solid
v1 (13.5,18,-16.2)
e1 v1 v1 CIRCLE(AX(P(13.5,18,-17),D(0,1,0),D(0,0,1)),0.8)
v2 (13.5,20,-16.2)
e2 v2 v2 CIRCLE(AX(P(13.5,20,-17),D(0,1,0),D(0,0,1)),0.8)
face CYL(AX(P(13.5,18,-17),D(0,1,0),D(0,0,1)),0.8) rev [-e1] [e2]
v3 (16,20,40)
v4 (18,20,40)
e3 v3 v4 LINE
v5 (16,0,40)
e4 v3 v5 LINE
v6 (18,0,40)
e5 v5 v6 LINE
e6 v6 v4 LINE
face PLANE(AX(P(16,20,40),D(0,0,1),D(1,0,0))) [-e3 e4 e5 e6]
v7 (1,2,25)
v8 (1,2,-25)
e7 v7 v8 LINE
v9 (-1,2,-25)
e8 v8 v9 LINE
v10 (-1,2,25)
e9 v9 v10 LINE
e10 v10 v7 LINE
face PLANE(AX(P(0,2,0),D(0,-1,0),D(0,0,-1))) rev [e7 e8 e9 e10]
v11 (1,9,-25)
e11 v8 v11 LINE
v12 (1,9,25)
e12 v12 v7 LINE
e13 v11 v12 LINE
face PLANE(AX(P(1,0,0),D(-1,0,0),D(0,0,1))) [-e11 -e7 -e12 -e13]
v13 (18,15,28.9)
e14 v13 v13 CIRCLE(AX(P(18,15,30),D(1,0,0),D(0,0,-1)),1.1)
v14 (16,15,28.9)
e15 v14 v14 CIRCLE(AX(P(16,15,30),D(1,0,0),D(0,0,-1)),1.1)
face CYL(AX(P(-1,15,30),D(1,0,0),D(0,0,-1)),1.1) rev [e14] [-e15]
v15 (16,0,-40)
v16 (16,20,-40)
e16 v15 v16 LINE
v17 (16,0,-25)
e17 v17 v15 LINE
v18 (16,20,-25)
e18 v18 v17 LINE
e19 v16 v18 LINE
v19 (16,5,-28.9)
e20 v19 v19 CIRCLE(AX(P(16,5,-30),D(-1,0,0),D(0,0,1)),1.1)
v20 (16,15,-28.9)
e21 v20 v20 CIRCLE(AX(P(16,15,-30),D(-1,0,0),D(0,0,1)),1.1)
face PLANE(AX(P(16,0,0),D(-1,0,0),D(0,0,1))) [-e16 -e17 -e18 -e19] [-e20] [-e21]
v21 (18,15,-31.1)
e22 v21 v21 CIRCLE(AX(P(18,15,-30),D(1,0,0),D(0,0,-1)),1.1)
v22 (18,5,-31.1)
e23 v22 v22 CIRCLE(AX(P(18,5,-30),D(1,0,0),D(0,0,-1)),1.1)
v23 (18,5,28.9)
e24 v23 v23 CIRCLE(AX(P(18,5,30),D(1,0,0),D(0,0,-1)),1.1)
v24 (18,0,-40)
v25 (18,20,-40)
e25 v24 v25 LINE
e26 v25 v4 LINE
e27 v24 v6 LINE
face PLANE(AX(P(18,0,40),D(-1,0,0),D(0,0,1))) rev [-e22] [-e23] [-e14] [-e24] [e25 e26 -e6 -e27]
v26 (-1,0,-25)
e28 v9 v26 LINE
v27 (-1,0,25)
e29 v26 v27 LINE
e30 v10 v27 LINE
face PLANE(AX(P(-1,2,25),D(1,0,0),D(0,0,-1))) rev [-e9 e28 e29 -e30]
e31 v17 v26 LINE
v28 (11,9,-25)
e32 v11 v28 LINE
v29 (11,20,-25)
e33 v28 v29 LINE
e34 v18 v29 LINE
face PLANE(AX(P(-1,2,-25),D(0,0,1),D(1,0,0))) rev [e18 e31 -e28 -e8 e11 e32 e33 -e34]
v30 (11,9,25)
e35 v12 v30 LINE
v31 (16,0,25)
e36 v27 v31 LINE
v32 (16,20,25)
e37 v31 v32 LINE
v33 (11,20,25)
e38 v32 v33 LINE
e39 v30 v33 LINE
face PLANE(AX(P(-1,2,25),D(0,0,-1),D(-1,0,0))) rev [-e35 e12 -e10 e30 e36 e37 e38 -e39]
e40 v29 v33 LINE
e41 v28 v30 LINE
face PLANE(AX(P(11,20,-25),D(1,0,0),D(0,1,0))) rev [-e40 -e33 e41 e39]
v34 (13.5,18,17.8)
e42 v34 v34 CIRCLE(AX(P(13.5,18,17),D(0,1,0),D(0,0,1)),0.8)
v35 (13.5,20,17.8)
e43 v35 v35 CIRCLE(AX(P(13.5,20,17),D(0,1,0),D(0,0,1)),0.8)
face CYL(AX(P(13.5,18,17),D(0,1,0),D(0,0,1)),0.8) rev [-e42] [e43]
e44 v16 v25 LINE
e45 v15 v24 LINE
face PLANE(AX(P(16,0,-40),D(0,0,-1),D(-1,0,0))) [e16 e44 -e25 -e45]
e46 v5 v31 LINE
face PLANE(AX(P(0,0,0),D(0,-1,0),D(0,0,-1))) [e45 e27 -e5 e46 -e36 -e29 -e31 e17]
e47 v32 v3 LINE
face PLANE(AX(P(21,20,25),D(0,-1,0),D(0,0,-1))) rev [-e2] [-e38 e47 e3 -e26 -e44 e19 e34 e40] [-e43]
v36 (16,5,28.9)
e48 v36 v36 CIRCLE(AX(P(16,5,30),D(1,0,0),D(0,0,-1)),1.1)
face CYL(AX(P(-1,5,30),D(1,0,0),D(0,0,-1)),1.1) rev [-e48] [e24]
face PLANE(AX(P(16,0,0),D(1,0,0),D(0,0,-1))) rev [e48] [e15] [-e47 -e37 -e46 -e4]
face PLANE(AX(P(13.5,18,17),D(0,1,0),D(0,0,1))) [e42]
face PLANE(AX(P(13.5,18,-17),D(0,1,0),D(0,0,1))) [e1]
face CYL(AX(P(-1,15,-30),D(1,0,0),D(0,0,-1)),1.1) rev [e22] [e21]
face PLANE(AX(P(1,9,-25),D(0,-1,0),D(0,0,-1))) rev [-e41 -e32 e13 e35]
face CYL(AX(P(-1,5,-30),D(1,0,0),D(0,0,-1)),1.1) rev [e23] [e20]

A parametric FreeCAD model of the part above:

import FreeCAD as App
import Part
import Sketcher
from FreeCAD import Vector
Q = App.Units.Quantity


def add_polygon(sketch, points):
    """Adds a closed chain of lines whose ends are joined by coincident constraints."""
    first, n = sketch.GeometryCount, len(points)
    for a, b in zip(points, points[1:] + points[:1]):
        sketch.addGeometry(Part.LineSegment(App.Vector(*a, 0), App.Vector(*b, 0)), False)
    for i in range(n):
        sketch.addConstraint(Sketcher.Constraint("Coincident", first + i, 2, first + (i + 1) % n, 1))

doc = App.newDocument("Part")
body = doc.addObject("PartDesign::Body", "Body")

sketch1 = body.newObject("Sketcher::SketchObject", "Sketch")
sketch1.AttachmentSupport = (doc.getObject("XZ_Plane"), [""])
sketch1.MapMode = "FlatFace"
add_polygon(sketch1, [(-1, -25), (-1, 25), (1, 25), (1, -25)])
sketch1.addConstraint([
    Sketcher.Constraint("Vertical", 0),
    Sketcher.Constraint("Horizontal", 1),
    Sketcher.Constraint("Vertical", 2),
    Sketcher.Constraint("Horizontal", 3),
    Sketcher.Constraint("Symmetric", 0, 2, 2, 2, -1, 1),
    Sketcher.Constraint("DistanceX", 1, 1, 1, 2, Q("2 mm")),
    Sketcher.Constraint("DistanceY", 0, 1, 0, 2, Q("50 mm")),
])
pad1 = body.newObject("PartDesign::Pad", "Pad")
pad1.Profile = sketch1
pad1.Length = 2
pad1.Reversed = True

sketch2 = body.newObject("Sketcher::SketchObject", "Sketch001")
sketch2.AttachmentSupport = (doc.getObject("YZ_Plane"), [""])
sketch2.MapMode = "FlatFace"
sketch2.AttachmentOffset = App.Placement(Vector(0, 0, 1), App.Rotation())
add_polygon(sketch2, [(20, 25), (0, 25), (0, -25), (20, -25)])
sketch2.addConstraint([
    Sketcher.Constraint("Horizontal", 0),
    Sketcher.Constraint("Vertical", 1),
    Sketcher.Constraint("Horizontal", 2),
    Sketcher.Constraint("Vertical", 3),
    Sketcher.Constraint("Symmetric", 0, 2, 1, 2, -1, 1),
    Sketcher.Constraint("DistanceX", 0, 2, 0, 1, Q("20 mm")),
    Sketcher.Constraint("DistanceY", 1, 2, 1, 1, Q("50 mm")),
])
pad2 = body.newObject("PartDesign::Pad", "Pad001")
pad2.Profile = sketch2
pad2.Length = 20

sketch3 = body.newObject("Sketcher::SketchObject", "Sketch002")
sketch3.AttachmentSupport = (doc.getObject("XY_Plane"), [""])
sketch3.MapMode = "FlatFace"
sketch3.AttachmentOffset = App.Placement(Vector(0, 0, 25), App.Rotation())
add_polygon(sketch3, [(1, 20), (1, 9), (11, 9), (11, 20)])
sketch3.addConstraint([
    Sketcher.Constraint("Vertical", 0),
    Sketcher.Constraint("Horizontal", 1),
    Sketcher.Constraint("Vertical", 2),
    Sketcher.Constraint("Horizontal", 3),
    Sketcher.Constraint("DistanceX", 1, 1, 1, 2, Q("10 mm")),
    Sketcher.Constraint("DistanceY", 0, 2, 0, 1, Q("11 mm")),
    Sketcher.Constraint("DistanceX", -1, 1, 0, 2, Q("1 mm")),
    Sketcher.Constraint("DistanceY", -1, 1, 0, 2, Q("9 mm")),
])
pocket1 = body.newObject("PartDesign::Pocket", "Pocket")
pocket1.Profile = sketch3
pocket1.Type = "ThroughAll"

sketch4 = body.newObject("Sketcher::SketchObject", "Sketch003")
sketch4.AttachmentSupport = (doc.getObject("YZ_Plane"), [""])
sketch4.MapMode = "FlatFace"
sketch4.AttachmentOffset = App.Placement(Vector(0, 0, 21), App.Rotation())
add_polygon(sketch4, [(20, 40), (0, 40), (0, 25), (20, 25)])
add_polygon(sketch4, [(20, -25), (0, -25), (0, -40), (20, -40)])
sketch4.addConstraint([
    Sketcher.Constraint("Horizontal", 0),
    Sketcher.Constraint("Vertical", 1),
    Sketcher.Constraint("Horizontal", 2),
    Sketcher.Constraint("Vertical", 3),
    Sketcher.Constraint("Horizontal", 4),
    Sketcher.Constraint("Vertical", 5),
    Sketcher.Constraint("Horizontal", 6),
    Sketcher.Constraint("Vertical", 7),
    Sketcher.Constraint("Symmetric", 1, 2, 4, 2, -1, 1),
    Sketcher.Constraint("Symmetric", 0, 2, 5, 2, -1),
    Sketcher.Constraint("Vertical", 3, 2, 6, 2),
    Sketcher.Constraint("DistanceX", 0, 2, 0, 1, Q("20 mm")),
    Sketcher.Constraint("DistanceY", 1, 2, 1, 1, Q("15 mm")),
    Sketcher.Constraint("DistanceY", -1, 1, 0, 2, Q("40 mm")),
])
pad3 = body.newObject("PartDesign::Pad", "Pad002")
pad3.Profile = sketch4
pad3.Length = 5
pad3.Reversed = True

sketch5 = body.newObject("Sketcher::SketchObject", "Sketch004")
sketch5.AttachmentSupport = (doc.getObject("XZ_Plane"), [""])
sketch5.MapMode = "FlatFace"
sketch5.AttachmentOffset = App.Placement(Vector(0, 0, -20), App.Rotation())
add_polygon(sketch5, [(18, -40), (18, 40), (21, 40), (21, -40)])
sketch5.addConstraint([
    Sketcher.Constraint("Vertical", 0),
    Sketcher.Constraint("Horizontal", 1),
    Sketcher.Constraint("Vertical", 2),
    Sketcher.Constraint("Horizontal", 3),
    Sketcher.Constraint("DistanceX", 1, 1, 1, 2, Q("3 mm")),
    Sketcher.Constraint("DistanceY", 0, 1, 0, 2, Q("80 mm")),
    Sketcher.Constraint("DistanceX", -1, 1, 0, 2, Q("18 mm")),
    Sketcher.Constraint("DistanceY", -1, 1, 0, 2, Q("40 mm")),
])
pocket2 = body.newObject("PartDesign::Pocket", "Pocket001")
pocket2.Profile = sketch5
pocket2.Type = "ThroughAll"
pocket2.Reversed = True

sketch6 = body.newObject("Sketcher::SketchObject", "Sketch005")
sketch6.AttachmentSupport = (doc.getObject("YZ_Plane"), [""])
sketch6.MapMode = "FlatFace"
sketch6.AttachmentOffset = App.Placement(Vector(0, 0, 18), App.Rotation())
sketch6.addGeometry([
    Part.Circle(Vector(15, -30, 0), Vector(0, 0, 1), 1.1),
    Part.Circle(Vector(5, -30, 0), Vector(0, 0, 1), 1.1),
    Part.Circle(Vector(15, 30, 0), Vector(0, 0, 1), 1.1),
    Part.Circle(Vector(5, 30, 0), Vector(0, 0, 1), 1.1),
], False)
sketch6.addConstraint([
    Sketcher.Constraint("Equal", 0, 1),
    Sketcher.Constraint("Equal", 1, 2),
    Sketcher.Constraint("Equal", 2, 3),
    Sketcher.Constraint("Symmetric", 0, 3, 2, 3, -1),
    Sketcher.Constraint("Symmetric", 1, 3, 3, 3, -1),
    Sketcher.Constraint("Horizontal", 0, 3, 1, 3),
    Sketcher.Constraint("Diameter", 0, Q("2.2 mm")),
    Sketcher.Constraint("DistanceX", -1, 1, 0, 3, Q("15 mm")),
    Sketcher.Constraint("DistanceY", 0, 3, -1, 1, Q("30 mm")),
    Sketcher.Constraint("DistanceX", -1, 1, 1, 3, Q("5 mm")),
])
pocket3 = body.newObject("PartDesign::Pocket", "Pocket002")
pocket3.Profile = sketch6
pocket3.Type = "ThroughAll"

sketch7 = body.newObject("Sketcher::SketchObject", "Sketch006")
sketch7.AttachmentSupport = (doc.getObject("XZ_Plane"), [""])
sketch7.MapMode = "FlatFace"
sketch7.AttachmentOffset = App.Placement(Vector(0, 0, -20), App.Rotation())
sketch7.addGeometry([
    Part.Circle(Vector(13.5, 17, 0), Vector(0, 0, 1), 0.8),
    Part.Circle(Vector(13.5, -17, 0), Vector(0, 0, 1), 0.8),
], False)
sketch7.addConstraint([
    Sketcher.Constraint("Equal", 0, 1),
    Sketcher.Constraint("Symmetric", 0, 3, 1, 3, -1),
    Sketcher.Constraint("Diameter", 0, Q("1.6 mm")),
    Sketcher.Constraint("DistanceY", -1, 1, 0, 3, Q("17 mm")),
    Sketcher.Constraint("DistanceX", -1, 1, 0, 3, Q("13.5 mm")),
])
pocket4 = body.newObject("PartDesign::Pocket", "Pocket003")
pocket4.Profile = sketch7
pocket4.Length = 2
pocket4.Reversed = True

doc.recompute()
